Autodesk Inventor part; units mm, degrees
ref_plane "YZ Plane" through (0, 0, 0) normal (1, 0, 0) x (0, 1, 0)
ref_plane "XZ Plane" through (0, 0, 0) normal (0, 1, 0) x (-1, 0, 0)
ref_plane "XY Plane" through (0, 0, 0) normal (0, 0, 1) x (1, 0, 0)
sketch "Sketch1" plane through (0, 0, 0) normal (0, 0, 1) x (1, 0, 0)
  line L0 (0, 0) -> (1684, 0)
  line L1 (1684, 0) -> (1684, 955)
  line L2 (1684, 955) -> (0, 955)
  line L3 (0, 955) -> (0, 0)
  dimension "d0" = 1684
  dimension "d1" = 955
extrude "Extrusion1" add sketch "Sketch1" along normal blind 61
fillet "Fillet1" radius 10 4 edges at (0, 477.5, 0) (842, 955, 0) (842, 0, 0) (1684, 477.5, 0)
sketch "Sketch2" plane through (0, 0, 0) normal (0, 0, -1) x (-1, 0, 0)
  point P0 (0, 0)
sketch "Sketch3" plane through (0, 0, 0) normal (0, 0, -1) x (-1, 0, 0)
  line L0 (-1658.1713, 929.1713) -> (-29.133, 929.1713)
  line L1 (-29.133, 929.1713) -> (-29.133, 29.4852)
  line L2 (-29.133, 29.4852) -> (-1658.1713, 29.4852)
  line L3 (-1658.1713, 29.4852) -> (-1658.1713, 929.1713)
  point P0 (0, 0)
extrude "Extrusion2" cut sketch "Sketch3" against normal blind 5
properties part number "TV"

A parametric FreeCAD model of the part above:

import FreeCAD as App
import Part
import Sketcher

V = App.Vector


def edges_at(feature, points):
    """Names of the edges that pass closest to the given points."""
    edges = feature.Shape.Edges
    near = lambda p: min(range(len(edges)), key=lambda i: edges[i].distToShape(Part.Vertex(*p))[0])
    return sorted({f"Edge{near(p) + 1}" for p in points})


def add_polygon(sketch, points):
    """Adds a closed chain of lines whose ends are joined by coincident constraints."""
    first, n = sketch.GeometryCount, len(points)
    for a, b in zip(points, points[1:] + points[:1]):
        sketch.addGeometry(Part.LineSegment(App.Vector(*a, 0), App.Vector(*b, 0)), False)
    for i in range(n):
        sketch.addConstraint(Sketcher.Constraint("Coincident", first + i, 2, first + (i + 1) % n, 1))

doc = App.newDocument("Part")
params = doc.addObject("Spreadsheet::Sheet", "Params")
for row, (alias, value) in enumerate([
    ("sketch1_width", "1684 mm"),
    ("sketch1_height", "955 mm"),
    ("pad1_length", "61 mm"),
    ("fillet_radius", "10 mm"),
    ("pocket1_length", "5 mm"),
], start=1):
    params.set(f"A{row}", alias)
    params.set(f"B{row}", "=" + value)
    params.setAlias(f"B{row}", alias)

body = doc.addObject("PartDesign::Body", "Body")

# Sketch on XY plane
sketch1 = body.newObject("Sketcher::SketchObject", "Sketch")
sketch1.AttachmentSupport = (doc.getObject("XY_Plane"), [""])
sketch1.MapMode = "FlatFace"
add_polygon(sketch1, [(0, 955), (0, 0), (1684, 0), (1684, 955)])  # lines 0-3
sketch1.addConstraint([
    Sketcher.Constraint("Vertical", 0),
    Sketcher.Constraint("Horizontal", 1),
    Sketcher.Constraint("Vertical", 2),
    Sketcher.Constraint("Horizontal", 3),
    Sketcher.Constraint("Coincident", 0, 2, -1, 1),
    Sketcher.Constraint("DistanceX", 1, 1, 1, 2, 1684.0),
    Sketcher.Constraint("DistanceY", 0, 2, 0, 1, 955.0),
])
sketch1.setExpression("Constraints[9]", "Params.sketch1_width")
sketch1.setExpression("Constraints[10]", "Params.sketch1_height")
pad1 = body.newObject("PartDesign::Pad", "Pad")
pad1.Profile = sketch1
pad1.setExpression("Length", "Params.pad1_length")
doc.recompute()

fillet = body.newObject("PartDesign::Fillet", "Fillet")
fillet.Base = (pad1, edges_at(pad1, [
    (0, 477.5, 0),
    (842, 955, 0),
    (842, 0, 0),
    (1684, 477.5, 0),
]))
fillet.setExpression("Radius", "Params.fillet_radius")

# Sketch on XY plane
sketch2 = body.newObject("Sketcher::SketchObject", "Sketch001")
sketch2.AttachmentSupport = (doc.getObject("XY_Plane"), [""])
sketch2.MapMode = "FlatFace"
add_polygon(sketch2, [(29, 929), (1658, 929), (1658, 29), (29, 29)])  # lines 0-3
sketch2.addConstraint([
    Sketcher.Constraint("Horizontal", 0),
    Sketcher.Constraint("Vertical", 1),
    Sketcher.Constraint("Horizontal", 2),
    Sketcher.Constraint("Vertical", 3),
    Sketcher.Constraint("DistanceY", 1, 2, 1, 1, 899.686),
    Sketcher.Constraint("DistanceX", 0, 1, 0, 2, 1629.0383),
    Sketcher.Constraint("DistanceX", -1, 1, 2, 2, 29.133),
    Sketcher.Constraint("DistanceY", -1, 1, 0, 2, 929.1713),
])
pocket1 = body.newObject("PartDesign::Pocket", "Pocket")
pocket1.Profile = sketch2
pocket1.setExpression("Length", "Params.pocket1_length")
pocket1.Reversed = True

doc.recompute()
